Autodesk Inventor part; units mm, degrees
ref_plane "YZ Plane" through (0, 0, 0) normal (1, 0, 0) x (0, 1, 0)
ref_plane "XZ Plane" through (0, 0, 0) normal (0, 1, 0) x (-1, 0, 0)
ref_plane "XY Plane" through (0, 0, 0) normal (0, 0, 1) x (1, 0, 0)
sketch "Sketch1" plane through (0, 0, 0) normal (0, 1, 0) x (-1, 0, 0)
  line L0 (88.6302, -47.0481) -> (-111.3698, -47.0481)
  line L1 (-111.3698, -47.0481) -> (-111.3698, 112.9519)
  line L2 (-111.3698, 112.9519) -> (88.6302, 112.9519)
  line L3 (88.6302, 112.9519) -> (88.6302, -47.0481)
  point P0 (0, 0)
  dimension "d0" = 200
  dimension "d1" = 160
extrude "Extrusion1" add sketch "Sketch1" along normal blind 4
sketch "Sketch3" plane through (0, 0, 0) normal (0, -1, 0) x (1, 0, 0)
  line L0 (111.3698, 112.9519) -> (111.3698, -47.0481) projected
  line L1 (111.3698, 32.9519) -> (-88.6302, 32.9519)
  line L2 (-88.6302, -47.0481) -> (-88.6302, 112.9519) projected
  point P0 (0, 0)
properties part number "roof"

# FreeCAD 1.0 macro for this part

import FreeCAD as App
import Part
import Sketcher
Q = App.Units.Quantity

doc = App.newDocument("Part")
params = doc.addObject("Spreadsheet::Sheet", "Params")
for row, (alias, value) in enumerate([
    ("sketch1_width", "200 mm"),
    ("sketch1_height", "160 mm"),
    ("pad1_length", "4 mm"),
], start=1):
    params.set(f"A{row}", alias)
    params.set(f"B{row}", "=" + value)
    params.setAlias(f"B{row}", alias)

body = doc.addObject("PartDesign::Body", "Body")

sketch1 = body.newObject("Sketcher::SketchObject", "Sketch")
sketch1.AttachmentSupport = (doc.getObject("XZ_Plane"), [""])
sketch1.MapMode = "FlatFace"
sketch1.addGeometry([
    Part.LineSegment(App.Vector(111, -47, 0), App.Vector(-89, -47, 0)),
    Part.LineSegment(App.Vector(-89, -47, 0), App.Vector(-89, 113, 0)),
    Part.LineSegment(App.Vector(-89, 113, 0), App.Vector(111, 113, 0)),
    Part.LineSegment(App.Vector(111, 113, 0), App.Vector(111, -47, 0)),
], False)
sketch1.addConstraint([
    Sketcher.Constraint("Coincident", 0, 2, 1, 1),
    Sketcher.Constraint("Coincident", 1, 2, 2, 1),
    Sketcher.Constraint("Coincident", 2, 2, 3, 1),
    Sketcher.Constraint("Coincident", 3, 2, 0, 1),
    Sketcher.Constraint("Horizontal", 0),
    Sketcher.Constraint("Vertical", 1),
    Sketcher.Constraint("Horizontal", 2),
    Sketcher.Constraint("Vertical", 3),
    Sketcher.Constraint("DistanceX", 0, 2, 0, 1, Q("200 mm")),
    Sketcher.Constraint("DistanceY", 1, 1, 1, 2, Q("160 mm")),
    Sketcher.Constraint("DistanceY", 0, 2, -1, 1, Q("47.048 mm")),
    Sketcher.Constraint("DistanceX", 0, 2, -1, 1, Q("88.6302 mm")),
])
sketch1.setExpression("Constraints[8]", "Params.sketch1_width")
sketch1.setExpression("Constraints[9]", "Params.sketch1_height")
pad1 = body.newObject("PartDesign::Pad", "Pad")
pad1.Profile = sketch1
pad1.setExpression("Length", "Params.pad1_length")
pad1.Reversed = True

doc.recompute()
